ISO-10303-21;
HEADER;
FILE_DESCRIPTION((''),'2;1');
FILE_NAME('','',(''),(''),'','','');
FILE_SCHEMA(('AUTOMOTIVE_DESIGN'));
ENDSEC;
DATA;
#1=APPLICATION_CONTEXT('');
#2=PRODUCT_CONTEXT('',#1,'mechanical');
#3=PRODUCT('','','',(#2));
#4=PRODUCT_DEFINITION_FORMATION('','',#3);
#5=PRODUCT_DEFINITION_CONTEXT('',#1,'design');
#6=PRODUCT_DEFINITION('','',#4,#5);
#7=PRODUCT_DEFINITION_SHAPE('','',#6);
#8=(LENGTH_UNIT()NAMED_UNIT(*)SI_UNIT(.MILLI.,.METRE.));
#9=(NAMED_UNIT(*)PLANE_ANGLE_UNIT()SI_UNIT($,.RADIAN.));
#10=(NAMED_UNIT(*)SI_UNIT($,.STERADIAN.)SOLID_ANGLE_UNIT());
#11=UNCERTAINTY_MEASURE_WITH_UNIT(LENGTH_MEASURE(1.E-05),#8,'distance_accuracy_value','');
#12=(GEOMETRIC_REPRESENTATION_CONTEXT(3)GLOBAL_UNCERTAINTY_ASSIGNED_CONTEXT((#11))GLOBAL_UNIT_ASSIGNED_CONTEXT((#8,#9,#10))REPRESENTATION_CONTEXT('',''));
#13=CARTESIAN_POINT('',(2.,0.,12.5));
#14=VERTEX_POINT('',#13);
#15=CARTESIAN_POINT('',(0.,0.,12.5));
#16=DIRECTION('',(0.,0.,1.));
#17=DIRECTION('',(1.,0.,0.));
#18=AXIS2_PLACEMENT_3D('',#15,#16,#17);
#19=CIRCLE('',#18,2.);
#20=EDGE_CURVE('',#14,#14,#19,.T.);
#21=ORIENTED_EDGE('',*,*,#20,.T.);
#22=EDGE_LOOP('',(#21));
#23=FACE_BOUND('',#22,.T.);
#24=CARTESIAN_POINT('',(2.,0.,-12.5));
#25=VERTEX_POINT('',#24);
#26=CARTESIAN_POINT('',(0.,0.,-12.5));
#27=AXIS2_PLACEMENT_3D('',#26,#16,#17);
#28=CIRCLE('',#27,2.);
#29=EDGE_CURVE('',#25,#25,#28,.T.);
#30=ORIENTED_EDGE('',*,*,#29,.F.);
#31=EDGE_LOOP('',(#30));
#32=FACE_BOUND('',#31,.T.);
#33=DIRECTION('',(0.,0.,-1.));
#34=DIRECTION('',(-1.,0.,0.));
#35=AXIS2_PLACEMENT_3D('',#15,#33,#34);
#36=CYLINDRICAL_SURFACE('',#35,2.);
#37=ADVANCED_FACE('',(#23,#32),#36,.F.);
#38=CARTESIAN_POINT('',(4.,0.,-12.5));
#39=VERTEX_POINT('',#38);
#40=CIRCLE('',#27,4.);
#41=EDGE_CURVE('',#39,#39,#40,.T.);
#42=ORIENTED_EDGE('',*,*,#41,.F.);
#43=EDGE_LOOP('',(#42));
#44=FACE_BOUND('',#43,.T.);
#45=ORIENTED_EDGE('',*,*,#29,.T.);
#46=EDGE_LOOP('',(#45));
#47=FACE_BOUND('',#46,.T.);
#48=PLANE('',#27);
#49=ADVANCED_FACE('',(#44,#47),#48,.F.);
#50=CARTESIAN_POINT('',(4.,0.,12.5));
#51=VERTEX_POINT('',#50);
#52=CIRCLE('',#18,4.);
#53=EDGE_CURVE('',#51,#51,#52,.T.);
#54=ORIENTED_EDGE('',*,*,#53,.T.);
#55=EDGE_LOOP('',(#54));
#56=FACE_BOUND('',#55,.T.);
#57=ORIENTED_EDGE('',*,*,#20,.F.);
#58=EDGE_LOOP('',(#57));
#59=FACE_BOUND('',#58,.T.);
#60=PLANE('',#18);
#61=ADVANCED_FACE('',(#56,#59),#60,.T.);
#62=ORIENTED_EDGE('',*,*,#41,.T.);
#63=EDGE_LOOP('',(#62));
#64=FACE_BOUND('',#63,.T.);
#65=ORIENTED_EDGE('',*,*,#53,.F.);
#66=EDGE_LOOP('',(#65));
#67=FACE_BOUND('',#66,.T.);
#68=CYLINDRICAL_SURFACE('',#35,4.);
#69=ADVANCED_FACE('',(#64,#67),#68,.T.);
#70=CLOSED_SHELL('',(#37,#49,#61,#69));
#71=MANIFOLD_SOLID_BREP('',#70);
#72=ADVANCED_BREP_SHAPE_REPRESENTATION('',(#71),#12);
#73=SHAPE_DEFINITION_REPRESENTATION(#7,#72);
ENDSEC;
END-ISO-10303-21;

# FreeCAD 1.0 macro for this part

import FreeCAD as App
import Part
import Sketcher

V = App.Vector
Q = App.Units.Quantity

doc = App.newDocument("Part")
body = doc.addObject("PartDesign::Body", "Body")

# Sketch on XY plane
sketch1 = body.newObject("Sketcher::SketchObject", "Sketch")
sketch1.AttachmentSupport = (doc.getObject("XY_Plane"), [""])
sketch1.MapMode = "FlatFace"
sketch1.addGeometry([
    Part.Circle(V(0, 0, 0), V(0, 0, 1), 4),
    Part.Circle(V(0, 0, 0), V(0, 0, 1), 2),
], False)
sketch1.addConstraint([
    Sketcher.Constraint("Coincident", 0, 3, -1, 1),
    Sketcher.Constraint("Coincident", 1, 3, -1, 1),
    Sketcher.Constraint("Diameter", 0, Q("8 mm")),
    Sketcher.Constraint("Diameter", 1, Q("4 mm")),
])
pad1 = body.newObject("PartDesign::Pad", "Pad")
pad1.Profile = sketch1
pad1.Length = 25
pad1.Midplane = True

doc.recompute()
